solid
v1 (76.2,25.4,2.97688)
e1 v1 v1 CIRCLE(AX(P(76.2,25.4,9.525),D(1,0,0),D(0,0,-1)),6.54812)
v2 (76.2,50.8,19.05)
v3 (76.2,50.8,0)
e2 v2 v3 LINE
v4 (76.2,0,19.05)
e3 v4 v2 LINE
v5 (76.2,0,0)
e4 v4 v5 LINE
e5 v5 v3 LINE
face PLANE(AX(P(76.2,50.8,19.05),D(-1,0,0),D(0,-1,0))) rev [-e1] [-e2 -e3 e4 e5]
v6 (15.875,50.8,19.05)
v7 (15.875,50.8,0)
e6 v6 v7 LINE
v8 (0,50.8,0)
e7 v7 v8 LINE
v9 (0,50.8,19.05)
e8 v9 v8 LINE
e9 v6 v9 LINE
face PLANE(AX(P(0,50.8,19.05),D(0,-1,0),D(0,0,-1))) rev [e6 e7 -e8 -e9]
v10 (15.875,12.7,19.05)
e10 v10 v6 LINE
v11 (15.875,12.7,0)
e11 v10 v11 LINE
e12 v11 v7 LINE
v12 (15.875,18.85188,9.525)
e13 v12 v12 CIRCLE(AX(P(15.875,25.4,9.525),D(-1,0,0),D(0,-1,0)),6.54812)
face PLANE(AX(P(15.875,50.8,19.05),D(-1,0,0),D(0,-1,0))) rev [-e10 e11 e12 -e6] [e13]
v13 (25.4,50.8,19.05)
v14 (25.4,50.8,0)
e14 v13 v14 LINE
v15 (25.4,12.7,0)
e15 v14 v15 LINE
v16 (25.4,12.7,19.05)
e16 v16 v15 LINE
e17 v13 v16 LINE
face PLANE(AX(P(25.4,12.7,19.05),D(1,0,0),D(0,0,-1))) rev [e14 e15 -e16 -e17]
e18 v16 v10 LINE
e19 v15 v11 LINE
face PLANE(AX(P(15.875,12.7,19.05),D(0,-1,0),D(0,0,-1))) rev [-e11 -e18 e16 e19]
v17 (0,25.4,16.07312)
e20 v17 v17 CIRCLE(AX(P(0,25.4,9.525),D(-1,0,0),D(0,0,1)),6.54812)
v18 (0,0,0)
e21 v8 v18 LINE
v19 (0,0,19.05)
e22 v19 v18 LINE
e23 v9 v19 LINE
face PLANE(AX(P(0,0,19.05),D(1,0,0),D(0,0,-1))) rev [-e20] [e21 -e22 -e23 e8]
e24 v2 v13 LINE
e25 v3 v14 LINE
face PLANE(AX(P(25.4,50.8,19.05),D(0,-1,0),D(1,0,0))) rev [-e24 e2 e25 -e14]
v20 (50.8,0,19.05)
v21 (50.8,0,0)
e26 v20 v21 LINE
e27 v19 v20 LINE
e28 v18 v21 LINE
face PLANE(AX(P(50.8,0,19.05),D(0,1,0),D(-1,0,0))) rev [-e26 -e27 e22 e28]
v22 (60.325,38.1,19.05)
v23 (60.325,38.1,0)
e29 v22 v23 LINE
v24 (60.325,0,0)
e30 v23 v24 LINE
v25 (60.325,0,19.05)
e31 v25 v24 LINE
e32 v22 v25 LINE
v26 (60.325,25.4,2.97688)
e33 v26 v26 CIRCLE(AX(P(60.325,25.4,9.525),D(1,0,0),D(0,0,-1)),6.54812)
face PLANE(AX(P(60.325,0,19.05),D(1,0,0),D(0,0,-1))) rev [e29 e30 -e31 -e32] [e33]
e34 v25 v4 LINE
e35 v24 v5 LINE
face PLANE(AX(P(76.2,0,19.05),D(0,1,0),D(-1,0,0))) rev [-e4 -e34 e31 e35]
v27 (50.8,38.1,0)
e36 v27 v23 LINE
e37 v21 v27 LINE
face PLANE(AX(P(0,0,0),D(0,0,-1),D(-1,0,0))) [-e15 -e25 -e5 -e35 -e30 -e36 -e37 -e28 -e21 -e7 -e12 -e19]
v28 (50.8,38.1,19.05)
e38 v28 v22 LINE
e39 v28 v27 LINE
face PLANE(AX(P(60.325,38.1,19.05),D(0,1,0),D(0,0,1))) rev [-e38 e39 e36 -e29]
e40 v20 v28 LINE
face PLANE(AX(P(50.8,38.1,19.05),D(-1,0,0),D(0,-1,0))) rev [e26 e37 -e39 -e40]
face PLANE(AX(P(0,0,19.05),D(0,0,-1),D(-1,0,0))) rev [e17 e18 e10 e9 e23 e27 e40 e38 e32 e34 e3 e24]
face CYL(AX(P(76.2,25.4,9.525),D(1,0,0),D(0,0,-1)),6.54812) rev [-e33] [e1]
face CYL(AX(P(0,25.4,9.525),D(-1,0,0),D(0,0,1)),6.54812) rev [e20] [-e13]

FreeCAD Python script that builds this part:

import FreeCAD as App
import Part
import Sketcher

V = App.Vector
Q = App.Units.Quantity

doc = App.newDocument("Part")
body = doc.addObject("PartDesign::Body", "Body")

# Sketch on XY plane
sketch1 = body.newObject("Sketcher::SketchObject", "Sketch")
sketch1.AttachmentSupport = (doc.getObject("XY_Plane"), [""])
sketch1.MapMode = "FlatFace"
sketch1.addGeometry([
    Part.LineSegment(V(0, 51, 0), V(0, 0, 0)),  # 0
    Part.LineSegment(V(0, 0, 0), V(51, 0, 0)),  # 1
    Part.LineSegment(V(51, 0, 0), V(51, 38, 0)),  # 2
    Part.LineSegment(V(51, 38, 0), V(60, 38, 0)),  # 3
    Part.LineSegment(V(60, 38, 0), V(60, 0, 0)),  # 4
    Part.LineSegment(V(60, 0, 0), V(76, 0, 0)),  # 5
    Part.LineSegment(V(76, 0, 0), V(76, 51, 0)),  # 6
    Part.LineSegment(V(76, 51, 0), V(25, 51, 0)),  # 7
    Part.LineSegment(V(25, 51, 0), V(25, 13, 0)),  # 8
    Part.LineSegment(V(25, 13, 0), V(16, 13, 0)),  # 9
    Part.LineSegment(V(16, 13, 0), V(16, 51, 0)),  # 10
    Part.LineSegment(V(16, 51, 0), V(0, 51, 0)),  # 11
], False)
sketch1.addConstraint([
    Sketcher.Constraint("Coincident", 0, 2, 1, 1),
    Sketcher.Constraint("Coincident", 1, 2, 2, 1),
    Sketcher.Constraint("Coincident", 2, 2, 3, 1),
    Sketcher.Constraint("Coincident", 3, 2, 4, 1),
    Sketcher.Constraint("Coincident", 4, 2, 5, 1),
    Sketcher.Constraint("Coincident", 5, 2, 6, 1),
    Sketcher.Constraint("Coincident", 6, 2, 7, 1),
    Sketcher.Constraint("Coincident", 7, 2, 8, 1),
    Sketcher.Constraint("Coincident", 8, 2, 9, 1),
    Sketcher.Constraint("Coincident", 9, 2, 10, 1),
    Sketcher.Constraint("Coincident", 10, 2, 11, 1),
    Sketcher.Constraint("Coincident", 11, 2, 0, 1),
    Sketcher.Constraint("Vertical", 0),
    Sketcher.Constraint("Horizontal", 1),
    Sketcher.Constraint("Vertical", 2),
    Sketcher.Constraint("Horizontal", 3),
    Sketcher.Constraint("Vertical", 4),
    Sketcher.Constraint("Horizontal", 5),
    Sketcher.Constraint("Vertical", 6),
    Sketcher.Constraint("Horizontal", 7),
    Sketcher.Constraint("Vertical", 8),
    Sketcher.Constraint("Horizontal", 9),
    Sketcher.Constraint("Vertical", 10),
    Sketcher.Constraint("Horizontal", 11),
    Sketcher.Constraint("Coincident", 0, 2, -1, 1),
    Sketcher.Constraint("PointOnObject", 4, 2, -1),
    Sketcher.Constraint("Horizontal", 7, 2, 10, 2),
    Sketcher.Constraint("Equal", 1, 7),
    Sketcher.Constraint("Equal", 3, 9),
    Sketcher.Constraint("Equal", 7, 0),
    Sketcher.Constraint("Equal", 4, 8),
    Sketcher.Constraint("DistanceX", 1, 1, 1, 2, Q("2 in")),
    Sketcher.Constraint("DistanceY", 2, 1, 2, 2, Q("1.5 in")),
    Sketcher.Constraint("DistanceX", -1, 1, 5, 2, Q("3 in")),
    Sketcher.Constraint("DistanceX", 3, 1, 3, 2, Q("0.375 in")),
])
pad1 = body.newObject("PartDesign::Pad", "Pad")
pad1.Profile = sketch1
pad1.Length = Q("0.75 in")

# Sketch on YZ plane
sketch2 = body.newObject("Sketcher::SketchObject", "Sketch001")
sketch2.AttachmentSupport = (doc.getObject("YZ_Plane"), [""])
sketch2.MapMode = "FlatFace"
sketch2.addGeometry(Part.Circle(V(25, 10, 0), V(0, 0, 1), 7), False)
sketch2.addConstraint([
    Sketcher.Constraint("DistanceX", -1, 1, 0, 3, Q("1 in")),
    Sketcher.Constraint("Diameter", 0, Q("0.5156 in")),
    Sketcher.Constraint("DistanceY", -1, 1, 0, 3, Q("0.375 in")),
])
doc.recompute()
hole = body.newObject("PartDesign::Hole", "Hole")
hole.Profile = sketch2
hole.ThreadType = "None"
hole.Diameter = Q("0.5156 in")
hole.DepthType = "Dimension"
hole.Depth = Q("0.625 in")
hole.DrillPoint = "Flat"
hole.Reversed = True

# Sketch on YZ plane
sketch3 = body.newObject("Sketcher::SketchObject", "Sketch002")
sketch3.AttachmentSupport = (doc.getObject("YZ_Plane"), [""])
sketch3.MapMode = "FlatFace"
sketch3.AttachmentOffset = App.Placement(V(0, 0, 3 * 25.4), App.Rotation())
sketch3.addGeometry(Part.Circle(V(25, 10, 0), V(0, 0, 1), 7), False)
sketch3.addConstraint([
    Sketcher.Constraint("DistanceX", -1, 1, 0, 3, Q("1 in")),
    Sketcher.Constraint("Diameter", 0, Q("0.5156 in")),
    Sketcher.Constraint("DistanceY", -1, 1, 0, 3, Q("0.375 in")),
])
doc.recompute()
hole2 = body.newObject("PartDesign::Hole", "Hole001")
hole2.Profile = sketch3
hole2.ThreadType = "None"
hole2.Diameter = Q("0.5156 in")
hole2.DepthType = "Dimension"
hole2.Depth = Q("0.625 in")
hole2.DrillPoint = "Flat"

doc.recompute()
